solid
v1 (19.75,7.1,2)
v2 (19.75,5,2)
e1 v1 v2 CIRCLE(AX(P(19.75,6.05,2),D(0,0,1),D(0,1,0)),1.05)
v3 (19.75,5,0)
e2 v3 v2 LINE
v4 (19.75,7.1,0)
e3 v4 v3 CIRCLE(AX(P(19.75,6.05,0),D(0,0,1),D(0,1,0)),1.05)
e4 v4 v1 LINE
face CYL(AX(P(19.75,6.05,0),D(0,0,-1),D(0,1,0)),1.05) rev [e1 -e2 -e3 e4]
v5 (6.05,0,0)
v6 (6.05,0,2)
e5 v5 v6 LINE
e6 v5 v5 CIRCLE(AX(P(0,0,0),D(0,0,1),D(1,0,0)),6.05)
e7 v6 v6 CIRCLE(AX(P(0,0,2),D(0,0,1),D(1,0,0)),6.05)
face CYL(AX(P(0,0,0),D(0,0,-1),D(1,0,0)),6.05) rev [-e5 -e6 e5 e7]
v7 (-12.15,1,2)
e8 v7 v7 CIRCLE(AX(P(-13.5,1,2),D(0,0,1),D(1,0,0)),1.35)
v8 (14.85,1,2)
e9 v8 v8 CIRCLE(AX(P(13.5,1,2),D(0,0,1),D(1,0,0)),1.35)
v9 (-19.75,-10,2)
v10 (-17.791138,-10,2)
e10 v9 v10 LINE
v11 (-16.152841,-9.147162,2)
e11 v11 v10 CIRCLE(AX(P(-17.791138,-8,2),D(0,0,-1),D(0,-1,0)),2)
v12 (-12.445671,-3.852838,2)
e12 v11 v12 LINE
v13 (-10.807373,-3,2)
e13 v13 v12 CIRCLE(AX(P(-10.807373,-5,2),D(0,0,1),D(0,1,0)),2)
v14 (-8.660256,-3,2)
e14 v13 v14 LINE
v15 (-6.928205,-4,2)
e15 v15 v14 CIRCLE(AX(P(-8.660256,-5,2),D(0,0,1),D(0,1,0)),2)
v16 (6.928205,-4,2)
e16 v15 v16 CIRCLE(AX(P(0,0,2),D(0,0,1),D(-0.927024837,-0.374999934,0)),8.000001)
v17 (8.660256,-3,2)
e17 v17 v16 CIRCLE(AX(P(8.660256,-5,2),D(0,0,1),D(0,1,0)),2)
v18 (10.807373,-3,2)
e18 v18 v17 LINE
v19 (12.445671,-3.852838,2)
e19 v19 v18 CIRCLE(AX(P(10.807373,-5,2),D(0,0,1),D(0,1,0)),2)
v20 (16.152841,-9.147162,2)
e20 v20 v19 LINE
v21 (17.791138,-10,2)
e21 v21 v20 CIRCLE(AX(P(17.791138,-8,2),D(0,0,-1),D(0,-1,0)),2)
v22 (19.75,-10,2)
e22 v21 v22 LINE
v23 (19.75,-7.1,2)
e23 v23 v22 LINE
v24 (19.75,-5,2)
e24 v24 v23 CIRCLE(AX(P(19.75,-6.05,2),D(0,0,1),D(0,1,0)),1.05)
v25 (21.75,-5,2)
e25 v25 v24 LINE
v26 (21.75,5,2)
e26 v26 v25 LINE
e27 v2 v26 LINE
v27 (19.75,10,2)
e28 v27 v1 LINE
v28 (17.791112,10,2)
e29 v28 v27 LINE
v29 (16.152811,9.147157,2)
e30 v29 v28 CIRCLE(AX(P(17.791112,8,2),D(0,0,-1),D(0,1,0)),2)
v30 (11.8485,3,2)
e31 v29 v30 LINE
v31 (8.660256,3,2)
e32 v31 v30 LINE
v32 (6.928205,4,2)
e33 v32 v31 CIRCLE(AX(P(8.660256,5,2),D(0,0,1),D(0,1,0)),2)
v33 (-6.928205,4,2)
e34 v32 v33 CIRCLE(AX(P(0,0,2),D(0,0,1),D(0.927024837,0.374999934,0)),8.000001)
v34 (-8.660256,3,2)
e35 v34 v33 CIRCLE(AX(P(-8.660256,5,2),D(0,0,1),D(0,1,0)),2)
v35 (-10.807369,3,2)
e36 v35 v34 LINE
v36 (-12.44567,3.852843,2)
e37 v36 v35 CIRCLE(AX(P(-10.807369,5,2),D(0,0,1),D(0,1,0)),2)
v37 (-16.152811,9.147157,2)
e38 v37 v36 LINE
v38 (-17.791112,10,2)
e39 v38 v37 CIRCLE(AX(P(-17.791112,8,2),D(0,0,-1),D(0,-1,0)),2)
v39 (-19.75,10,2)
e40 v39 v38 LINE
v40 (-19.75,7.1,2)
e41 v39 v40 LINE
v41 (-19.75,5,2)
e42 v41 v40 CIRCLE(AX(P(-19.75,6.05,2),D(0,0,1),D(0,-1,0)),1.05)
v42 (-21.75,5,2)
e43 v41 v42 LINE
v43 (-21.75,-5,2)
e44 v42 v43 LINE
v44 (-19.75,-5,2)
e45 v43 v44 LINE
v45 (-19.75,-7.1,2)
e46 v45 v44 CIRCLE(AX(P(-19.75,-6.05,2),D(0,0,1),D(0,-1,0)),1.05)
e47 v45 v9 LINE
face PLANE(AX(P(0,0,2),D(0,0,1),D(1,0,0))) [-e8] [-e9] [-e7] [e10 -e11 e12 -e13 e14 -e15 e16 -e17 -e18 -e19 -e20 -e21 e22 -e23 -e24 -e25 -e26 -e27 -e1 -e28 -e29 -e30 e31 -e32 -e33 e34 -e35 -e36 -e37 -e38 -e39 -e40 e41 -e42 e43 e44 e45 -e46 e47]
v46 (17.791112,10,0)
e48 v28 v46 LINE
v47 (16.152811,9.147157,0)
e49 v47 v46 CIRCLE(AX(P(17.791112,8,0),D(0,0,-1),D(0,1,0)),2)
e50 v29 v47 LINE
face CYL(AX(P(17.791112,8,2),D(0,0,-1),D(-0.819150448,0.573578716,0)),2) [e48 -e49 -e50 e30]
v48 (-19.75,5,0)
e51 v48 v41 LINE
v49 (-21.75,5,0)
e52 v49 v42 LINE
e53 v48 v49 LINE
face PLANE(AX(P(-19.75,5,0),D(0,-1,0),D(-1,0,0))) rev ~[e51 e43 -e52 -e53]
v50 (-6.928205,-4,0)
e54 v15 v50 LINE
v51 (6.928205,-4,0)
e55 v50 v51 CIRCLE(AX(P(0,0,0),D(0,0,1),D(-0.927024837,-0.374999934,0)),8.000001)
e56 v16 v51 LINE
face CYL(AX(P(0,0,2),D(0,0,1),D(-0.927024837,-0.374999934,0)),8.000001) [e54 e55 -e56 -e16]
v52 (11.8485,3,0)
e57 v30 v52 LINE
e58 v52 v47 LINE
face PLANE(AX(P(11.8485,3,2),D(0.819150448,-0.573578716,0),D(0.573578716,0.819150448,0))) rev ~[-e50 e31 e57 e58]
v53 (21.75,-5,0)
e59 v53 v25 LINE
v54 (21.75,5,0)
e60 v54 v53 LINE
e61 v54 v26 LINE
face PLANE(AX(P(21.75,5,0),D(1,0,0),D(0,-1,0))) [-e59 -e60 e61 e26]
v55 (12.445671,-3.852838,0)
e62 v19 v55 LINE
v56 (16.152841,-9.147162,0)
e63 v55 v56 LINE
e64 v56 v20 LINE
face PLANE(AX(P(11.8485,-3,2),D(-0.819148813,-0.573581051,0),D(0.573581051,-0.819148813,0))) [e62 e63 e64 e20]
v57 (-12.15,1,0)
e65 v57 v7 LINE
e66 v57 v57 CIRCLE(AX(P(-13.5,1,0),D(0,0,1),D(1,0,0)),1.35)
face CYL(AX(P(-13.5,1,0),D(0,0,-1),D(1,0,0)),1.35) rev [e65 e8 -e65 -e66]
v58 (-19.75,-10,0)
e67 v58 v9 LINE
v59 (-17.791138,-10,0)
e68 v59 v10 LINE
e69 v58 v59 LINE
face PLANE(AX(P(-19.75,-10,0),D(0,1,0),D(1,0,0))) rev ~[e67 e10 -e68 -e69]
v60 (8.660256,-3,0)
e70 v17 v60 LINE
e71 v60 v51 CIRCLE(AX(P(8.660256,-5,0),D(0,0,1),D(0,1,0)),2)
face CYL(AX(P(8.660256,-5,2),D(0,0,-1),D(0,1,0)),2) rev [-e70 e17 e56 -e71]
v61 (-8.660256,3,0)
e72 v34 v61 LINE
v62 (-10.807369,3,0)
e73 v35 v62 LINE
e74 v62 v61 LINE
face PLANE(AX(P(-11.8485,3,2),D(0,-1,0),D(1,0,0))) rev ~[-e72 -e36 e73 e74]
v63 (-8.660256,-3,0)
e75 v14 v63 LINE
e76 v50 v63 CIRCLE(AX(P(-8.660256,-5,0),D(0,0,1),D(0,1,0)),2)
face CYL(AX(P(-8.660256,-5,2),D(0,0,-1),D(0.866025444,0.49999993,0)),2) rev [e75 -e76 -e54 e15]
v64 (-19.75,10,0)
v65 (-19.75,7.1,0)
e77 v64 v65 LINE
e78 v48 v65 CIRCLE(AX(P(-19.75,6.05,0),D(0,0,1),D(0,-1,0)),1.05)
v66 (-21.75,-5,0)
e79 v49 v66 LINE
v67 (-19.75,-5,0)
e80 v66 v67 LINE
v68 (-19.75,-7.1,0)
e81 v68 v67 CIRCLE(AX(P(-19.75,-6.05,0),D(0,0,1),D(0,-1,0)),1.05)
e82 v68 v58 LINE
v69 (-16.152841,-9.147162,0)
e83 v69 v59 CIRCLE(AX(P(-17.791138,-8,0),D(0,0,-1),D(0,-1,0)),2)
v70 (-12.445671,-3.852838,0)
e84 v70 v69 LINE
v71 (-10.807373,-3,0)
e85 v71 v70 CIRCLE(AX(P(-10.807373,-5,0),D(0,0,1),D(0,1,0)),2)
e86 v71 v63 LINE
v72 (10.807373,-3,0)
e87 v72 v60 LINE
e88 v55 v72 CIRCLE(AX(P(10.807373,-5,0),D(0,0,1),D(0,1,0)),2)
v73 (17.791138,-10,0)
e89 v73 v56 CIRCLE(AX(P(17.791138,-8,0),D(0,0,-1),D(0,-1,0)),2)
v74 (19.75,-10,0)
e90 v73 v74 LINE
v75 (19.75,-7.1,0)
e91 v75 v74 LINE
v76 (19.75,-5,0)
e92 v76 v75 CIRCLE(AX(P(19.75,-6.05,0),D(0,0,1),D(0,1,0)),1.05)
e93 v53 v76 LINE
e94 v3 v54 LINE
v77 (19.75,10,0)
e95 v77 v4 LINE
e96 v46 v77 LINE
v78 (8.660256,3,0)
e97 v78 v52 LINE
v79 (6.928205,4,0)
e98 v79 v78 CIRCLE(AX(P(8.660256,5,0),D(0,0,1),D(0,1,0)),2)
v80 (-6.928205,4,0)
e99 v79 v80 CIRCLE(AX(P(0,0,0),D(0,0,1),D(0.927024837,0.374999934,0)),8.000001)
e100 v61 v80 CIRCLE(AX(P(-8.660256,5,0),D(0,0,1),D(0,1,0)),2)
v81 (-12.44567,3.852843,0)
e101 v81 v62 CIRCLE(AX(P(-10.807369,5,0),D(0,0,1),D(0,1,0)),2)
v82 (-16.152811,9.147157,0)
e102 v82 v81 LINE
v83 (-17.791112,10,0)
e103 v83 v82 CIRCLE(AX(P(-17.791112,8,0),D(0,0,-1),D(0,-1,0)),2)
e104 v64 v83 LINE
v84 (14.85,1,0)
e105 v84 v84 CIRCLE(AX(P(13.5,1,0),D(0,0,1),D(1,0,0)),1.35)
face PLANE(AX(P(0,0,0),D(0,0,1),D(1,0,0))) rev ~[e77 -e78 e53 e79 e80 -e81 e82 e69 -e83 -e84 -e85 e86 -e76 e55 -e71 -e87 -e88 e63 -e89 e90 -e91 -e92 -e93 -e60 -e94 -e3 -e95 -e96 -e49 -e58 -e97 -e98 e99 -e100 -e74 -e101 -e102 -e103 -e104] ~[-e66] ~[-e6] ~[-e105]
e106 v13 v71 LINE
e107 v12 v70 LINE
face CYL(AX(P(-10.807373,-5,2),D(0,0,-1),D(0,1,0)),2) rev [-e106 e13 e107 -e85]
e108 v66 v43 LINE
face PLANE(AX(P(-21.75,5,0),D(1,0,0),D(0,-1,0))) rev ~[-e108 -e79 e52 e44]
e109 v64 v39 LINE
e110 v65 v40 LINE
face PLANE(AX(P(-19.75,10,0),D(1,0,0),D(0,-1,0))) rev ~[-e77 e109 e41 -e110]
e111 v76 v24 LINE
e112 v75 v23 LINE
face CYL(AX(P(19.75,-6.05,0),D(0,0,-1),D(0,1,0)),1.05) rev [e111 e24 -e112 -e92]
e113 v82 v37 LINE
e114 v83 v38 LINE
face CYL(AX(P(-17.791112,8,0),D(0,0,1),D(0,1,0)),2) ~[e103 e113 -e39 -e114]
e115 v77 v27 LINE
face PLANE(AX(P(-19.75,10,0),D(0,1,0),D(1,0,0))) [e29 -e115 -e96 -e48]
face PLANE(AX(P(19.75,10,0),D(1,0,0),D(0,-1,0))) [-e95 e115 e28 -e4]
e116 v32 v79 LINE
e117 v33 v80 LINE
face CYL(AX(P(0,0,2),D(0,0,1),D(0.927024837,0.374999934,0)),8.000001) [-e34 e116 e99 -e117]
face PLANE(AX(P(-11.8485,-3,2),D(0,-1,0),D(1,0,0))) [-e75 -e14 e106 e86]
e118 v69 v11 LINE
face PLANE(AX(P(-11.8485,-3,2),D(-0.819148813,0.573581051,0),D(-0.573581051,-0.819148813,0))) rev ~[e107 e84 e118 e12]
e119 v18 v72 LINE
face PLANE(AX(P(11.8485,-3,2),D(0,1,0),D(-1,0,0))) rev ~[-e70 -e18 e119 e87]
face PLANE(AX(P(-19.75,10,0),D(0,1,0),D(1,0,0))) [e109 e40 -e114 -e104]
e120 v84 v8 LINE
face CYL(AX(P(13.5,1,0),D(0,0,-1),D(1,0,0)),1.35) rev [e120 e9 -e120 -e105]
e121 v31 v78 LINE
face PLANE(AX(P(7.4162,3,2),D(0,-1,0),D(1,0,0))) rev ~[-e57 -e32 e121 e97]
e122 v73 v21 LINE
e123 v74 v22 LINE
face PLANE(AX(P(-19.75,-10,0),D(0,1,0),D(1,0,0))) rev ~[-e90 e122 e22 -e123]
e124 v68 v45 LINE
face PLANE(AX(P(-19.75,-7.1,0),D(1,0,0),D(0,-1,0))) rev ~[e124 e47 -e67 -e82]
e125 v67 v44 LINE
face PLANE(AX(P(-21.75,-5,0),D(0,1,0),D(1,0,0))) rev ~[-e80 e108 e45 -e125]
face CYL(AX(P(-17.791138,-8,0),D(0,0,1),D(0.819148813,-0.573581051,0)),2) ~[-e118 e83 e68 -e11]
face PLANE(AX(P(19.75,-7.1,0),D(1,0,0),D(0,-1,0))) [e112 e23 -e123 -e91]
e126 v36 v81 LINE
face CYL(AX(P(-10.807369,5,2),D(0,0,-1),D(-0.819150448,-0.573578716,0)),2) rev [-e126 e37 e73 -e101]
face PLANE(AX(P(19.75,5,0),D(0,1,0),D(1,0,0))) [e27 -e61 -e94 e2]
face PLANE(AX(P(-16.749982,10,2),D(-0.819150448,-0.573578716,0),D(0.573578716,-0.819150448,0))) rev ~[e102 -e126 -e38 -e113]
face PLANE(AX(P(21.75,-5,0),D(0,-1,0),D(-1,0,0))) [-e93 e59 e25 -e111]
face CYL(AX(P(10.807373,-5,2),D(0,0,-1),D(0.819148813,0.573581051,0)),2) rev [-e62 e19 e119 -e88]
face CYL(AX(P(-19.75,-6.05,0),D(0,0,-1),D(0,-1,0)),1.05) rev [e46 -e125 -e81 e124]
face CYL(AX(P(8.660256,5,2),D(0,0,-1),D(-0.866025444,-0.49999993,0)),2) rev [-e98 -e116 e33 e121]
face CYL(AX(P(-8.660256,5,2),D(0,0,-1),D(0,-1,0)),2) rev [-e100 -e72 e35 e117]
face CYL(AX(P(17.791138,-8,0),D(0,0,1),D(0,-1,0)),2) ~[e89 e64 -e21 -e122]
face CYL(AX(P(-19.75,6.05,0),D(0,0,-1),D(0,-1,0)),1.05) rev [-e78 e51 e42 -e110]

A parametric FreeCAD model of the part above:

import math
import FreeCAD as App
import Part
import Sketcher
from FreeCAD import Vector
Q = App.Units.Quantity


def edges_at(feature, points):
    """Names of the edges that pass closest to the given points."""
    edges = feature.Shape.Edges
    near = lambda p: min(range(len(edges)), key=lambda i: edges[i].distToShape(Part.Vertex(*p))[0])
    return sorted({f"Edge{near(p) + 1}" for p in points})

doc = App.newDocument("Part")
body = doc.addObject("PartDesign::Body", "Body")

sketch1 = body.newObject("Sketcher::SketchObject", "Sketch")
sketch1.AttachmentSupport = (doc.getObject("XY_Plane"), [""])
sketch1.MapMode = "FlatFace"
sketch1.addGeometry(Part.LineSegment(Vector(19.8, 10, 0), Vector(-19.8, 10, 0)), False)
sketch1.addGeometry(Part.LineSegment(Vector(-19.8, 10, 0), Vector(-19.8, 7.1, 0)), False)
sketch1.addGeometry(Part.ArcOfCircle(Part.Circle(Vector(-19.8, 6, 0), Vector(0, 0, 1), 1), math.radians(-90), math.radians(90)), False)
sketch1.addGeometry(Part.LineSegment(Vector(-19.8, 5, 0), Vector(-21.8, 5, 0)), False)
sketch1.addGeometry(Part.LineSegment(Vector(-21.8, 5, 0), Vector(-21.8, -5, 0)), False)
sketch1.addGeometry(Part.LineSegment(Vector(-21.8, -5, 0), Vector(-19.8, -5, 0)), False)
sketch1.addGeometry(Part.ArcOfCircle(Part.Circle(Vector(-19.8, -6, 0), Vector(0, 0, 1), 1), math.radians(-90), math.radians(90)), False)
sketch1.addGeometry(Part.LineSegment(Vector(-19.8, -7.1, 0), Vector(-19.8, -10, 0)), False)
sketch1.addGeometry(Part.LineSegment(Vector(-19.8, -10, 0), Vector(19.8, -10, 0)), False)
sketch1.addGeometry(Part.LineSegment(Vector(19.8, -10, 0), Vector(19.8, -7.1, 0)), False)
sketch1.addGeometry(Part.ArcOfCircle(Part.Circle(Vector(19.8, -6, 0), Vector(0, 0, 1), 1), math.radians(90), math.radians(270)), False)
sketch1.addGeometry(Part.LineSegment(Vector(19.8, -5, 0), Vector(21.8, -5, 0)), False)
sketch1.addGeometry(Part.LineSegment(Vector(21.8, -5, 0), Vector(21.8, 5, 0)), False)
sketch1.addGeometry(Part.LineSegment(Vector(21.8, 5, 0), Vector(19.8, 5, 0)), False)
sketch1.addGeometry(Part.ArcOfCircle(Part.Circle(Vector(19.8, 6, 0), Vector(0, 0, 1), 1), math.radians(90), math.radians(270)), False)
sketch1.addGeometry(Part.LineSegment(Vector(19.8, 7.1, 0), Vector(19.8, 10, 0)), False)
sketch1.addGeometry(Part.Circle(Vector(-13.5, 1, 0), Vector(0, 0, 1), 1.4), False)
sketch1.addGeometry(Part.Circle(Vector(0, 0, 0), Vector(0, 0, 1), 6), False)
sketch1.addGeometry(Part.Circle(Vector(13.5, 1, 0), Vector(0, 0, 1), 1.4), False)
sketch1.addConstraint(Sketcher.Constraint("Coincident", 0, 2, 1, 1))
sketch1.addConstraint(Sketcher.Constraint("Coincident", 1, 2, 2, 2))
sketch1.addConstraint(Sketcher.Constraint("Tangent", 2, 1, 3, 1))
sketch1.addConstraint(Sketcher.Constraint("Coincident", 3, 2, 4, 1))
sketch1.addConstraint(Sketcher.Constraint("Coincident", 4, 2, 5, 1))
sketch1.addConstraint(Sketcher.Constraint("Tangent", 5, 2, 6, 2))
sketch1.addConstraint(Sketcher.Constraint("Coincident", 6, 1, 7, 1))
sketch1.addConstraint(Sketcher.Constraint("Coincident", 7, 2, 8, 1))
sketch1.addConstraint(Sketcher.Constraint("Coincident", 8, 2, 9, 1))
sketch1.addConstraint(Sketcher.Constraint("Coincident", 9, 2, 10, 2))
sketch1.addConstraint(Sketcher.Constraint("Tangent", 10, 1, 11, 1))
sketch1.addConstraint(Sketcher.Constraint("Coincident", 11, 2, 12, 1))
sketch1.addConstraint(Sketcher.Constraint("Coincident", 12, 2, 13, 1))
sketch1.addConstraint(Sketcher.Constraint("Tangent", 13, 2, 14, 2))
sketch1.addConstraint(Sketcher.Constraint("Coincident", 14, 1, 15, 1))
sketch1.addConstraint(Sketcher.Constraint("Coincident", 15, 2, 0, 1))
sketch1.addConstraint(Sketcher.Constraint("Horizontal", 0))
sketch1.addConstraint(Sketcher.Constraint("Vertical", 1))
sketch1.addConstraint(Sketcher.Constraint("Horizontal", 3))
sketch1.addConstraint(Sketcher.Constraint("Vertical", 4))
sketch1.addConstraint(Sketcher.Constraint("Horizontal", 5))
sketch1.addConstraint(Sketcher.Constraint("Vertical", 7))
sketch1.addConstraint(Sketcher.Constraint("Horizontal", 8))
sketch1.addConstraint(Sketcher.Constraint("Vertical", 9))
sketch1.addConstraint(Sketcher.Constraint("Horizontal", 11))
sketch1.addConstraint(Sketcher.Constraint("Vertical", 12))
sketch1.addConstraint(Sketcher.Constraint("Horizontal", 13))
sketch1.addConstraint(Sketcher.Constraint("Vertical", 15))
sketch1.addConstraint(Sketcher.Constraint("Coincident", 17, 3, -1, 1))
sketch1.addConstraint(Sketcher.Constraint("Equal", 2, 6))
sketch1.addConstraint(Sketcher.Constraint("Equal", 6, 10))
sketch1.addConstraint(Sketcher.Constraint("Equal", 10, 14))
sketch1.addConstraint(Sketcher.Constraint("Equal", 16, 18))
sketch1.addConstraint(Sketcher.Constraint("Symmetric", 2, 3, 10, 3, -1, 1))
sketch1.addConstraint(Sketcher.Constraint("Symmetric", 6, 3, 14, 3, -1, 1))
sketch1.addConstraint(Sketcher.Constraint("Symmetric", 0, 2, 8, 2, -1, 1))
sketch1.addConstraint(Sketcher.Constraint("Symmetric", 6, 3, 10, 3, -2))
sketch1.addConstraint(Sketcher.Constraint("Symmetric", 16, 3, 18, 3, -2))
sketch1.addConstraint(Sketcher.Constraint("Vertical", 6, 3, 0, 2))
sketch1.addConstraint(Sketcher.Constraint("Vertical", 5, 2, 6, 1))
sketch1.addConstraint(Sketcher.Constraint("Vertical", 13, 2, 14, 1))
sketch1.addConstraint(Sketcher.Constraint("Equal", 5, 11))
sketch1.addConstraint(Sketcher.Constraint("Diameter", 16, 2.7))
sketch1.addConstraint(Sketcher.Constraint("Diameter", 17, 12.1))
sketch1.addConstraint(Sketcher.Constraint("DistanceX", 3, 2, 3, 1, 2.0))
sketch1.addConstraint(Sketcher.Constraint("DistanceY", 4, 2, 4, 1, 10.0))
sketch1.addConstraint(Sketcher.Constraint("Radius", 2, 1.05))
sketch1.addConstraint(Sketcher.Constraint("DistanceX", 0, 2, 0, 1, 39.5))
sketch1.addConstraint(Sketcher.Constraint("DistanceY", -1, 1, 16, 3, 1.0))
sketch1.addConstraint(Sketcher.Constraint("DistanceY", -1, 1, 0, 2, 10.0))
sketch1.addConstraint(Sketcher.Constraint("DistanceX", 16, 3, 18, 3, 27.0))
pad1 = body.newObject("PartDesign::Pad", "Pad")
pad1.Profile = sketch1
pad1.Length = 2

sketch2 = body.newObject("Sketcher::SketchObject", "Sketch001")
sketch2.AttachmentSupport = (doc.getObject("XY_Plane"), [""])
sketch2.MapMode = "FlatFace"
sketch2.AttachmentOffset = App.Placement(Vector(0, 0, 2), App.Rotation())
sketch2.addGeometry(Part.LineSegment(Vector(-11.8, -3, 0), Vector(-24.3, -20.8, 0)), False)
sketch2.addGeometry(Part.LineSegment(Vector(-24.3, -20.8, 0), Vector(24.3, -20.8, 0)), False)
sketch2.addGeometry(Part.LineSegment(Vector(24.3, -20.8, 0), Vector(11.8, -3, 0)), False)
sketch2.addGeometry(Part.LineSegment(Vector(11.8, -3, 0), Vector(7.4, -3, 0)), False)
sketch2.addGeometry(Part.ArcOfCircle(Part.Circle(Vector(0, 0, 0), Vector(0, 0, 1), 8), math.radians(-158), math.radians(-22)), False)
sketch2.addGeometry(Part.LineSegment(Vector(-7.4, -3, 0), Vector(-11.8, -3, 0)), False)
sketch2.addGeometry(Part.LineSegment(Vector(11.8, 3, 0), Vector(18.5, 12.4, 0)), False)
sketch2.addGeometry(Part.LineSegment(Vector(18.5, 12.4, 0), Vector(-18.5, 12.4, 0)), False)
sketch2.addGeometry(Part.LineSegment(Vector(-18.5, 12.4, 0), Vector(-11.8, 3, 0)), False)
sketch2.addGeometry(Part.LineSegment(Vector(-11.8, 3, 0), Vector(-7.4, 3, 0)), False)
sketch2.addGeometry(Part.ArcOfCircle(Part.Circle(Vector(0, 0, 0), Vector(0, 0, 1), 8), math.radians(22), math.radians(158)), False)
sketch2.addGeometry(Part.LineSegment(Vector(7.4, 3, 0), Vector(11.8, 3, 0)), False)
sketch2.addConstraint(Sketcher.Constraint("Coincident", 0, 2, 1, 1))
sketch2.addConstraint(Sketcher.Constraint("Coincident", 1, 2, 2, 1))
sketch2.addConstraint(Sketcher.Constraint("Coincident", 2, 2, 3, 1))
sketch2.addConstraint(Sketcher.Constraint("Coincident", 3, 2, 4, 2))
sketch2.addConstraint(Sketcher.Constraint("Coincident", 4, 1, 5, 1))
sketch2.addConstraint(Sketcher.Constraint("Coincident", 5, 2, 0, 1))
sketch2.addConstraint(Sketcher.Constraint("Coincident", 6, 2, 7, 1))
sketch2.addConstraint(Sketcher.Constraint("Coincident", 7, 2, 8, 1))
sketch2.addConstraint(Sketcher.Constraint("Coincident", 8, 2, 9, 1))
sketch2.addConstraint(Sketcher.Constraint("Coincident", 9, 2, 10, 2))
sketch2.addConstraint(Sketcher.Constraint("Coincident", 10, 1, 11, 1))
sketch2.addConstraint(Sketcher.Constraint("Coincident", 11, 2, 6, 1))
sketch2.addConstraint(Sketcher.Constraint("Horizontal", 1))
sketch2.addConstraint(Sketcher.Constraint("Horizontal", 3))
sketch2.addConstraint(Sketcher.Constraint("Horizontal", 5))
sketch2.addConstraint(Sketcher.Constraint("Horizontal", 7))
sketch2.addConstraint(Sketcher.Constraint("Horizontal", 9))
sketch2.addConstraint(Sketcher.Constraint("Horizontal", 11))
sketch2.addConstraint(Sketcher.Constraint("Coincident", 4, 3, -1, 1))
sketch2.addConstraint(Sketcher.Constraint("Coincident", 10, 3, -1, 1))
sketch2.addConstraint(Sketcher.Constraint("Equal", 4, 10))
sketch2.addConstraint(Sketcher.Constraint("Symmetric", 2, 2, 8, 2, -1, 1))
sketch2.addConstraint(Sketcher.Constraint("Symmetric", 5, 2, 11, 2, -1, 1))
sketch2.addConstraint(Sketcher.Constraint("Symmetric", 2, 2, 5, 2, -2))
sketch2.addConstraint(Sketcher.Constraint("Parallel", 0, 6))
sketch2.addConstraint(Sketcher.Constraint("Parallel", 2, 8))
sketch2.addConstraint(Sketcher.Constraint("Equal", 0, 2))
sketch2.addConstraint(Sketcher.Constraint("Radius", 4, 8.0))
sketch2.addConstraint(Sketcher.Constraint("DistanceY", 2, 2, -1, 1, 3.0))
sketch2.addConstraint(Sketcher.Constraint("Angle", 0, Q("-125.0003 deg")))
sketch2.addConstraint(Sketcher.Constraint("DistanceX", 1, 1, 1, 2, 48.666))
sketch2.addConstraint(Sketcher.Constraint("Distance", 0, 21.766))
sketch2.addConstraint(Sketcher.Constraint("Distance", 6, 11.534))
pocket1 = body.newObject("PartDesign::Pocket", "Pocket")
pocket1.Profile = sketch2
pocket1.Length = 10
doc.recompute()

fillet = body.newObject("PartDesign::Fillet", "Fillet")
fillet.Base = (pocket1, edges_at(pocket1, [
    (-11.848, 3, 1),
    (-7.416, 3, 1),
    (7.416, 3, 1),
    (11.848, -3, 1),
    (7.416, -3, 1),
    (-7.416, -3, 1),
    (-11.848, -3, 1),
    (-16.75, -10, 1),
    (-16.75, 10, 1),
    (16.75, 10, 1),
    (16.75, -10, 1),
]))
fillet.Radius = 2

doc.recompute()
